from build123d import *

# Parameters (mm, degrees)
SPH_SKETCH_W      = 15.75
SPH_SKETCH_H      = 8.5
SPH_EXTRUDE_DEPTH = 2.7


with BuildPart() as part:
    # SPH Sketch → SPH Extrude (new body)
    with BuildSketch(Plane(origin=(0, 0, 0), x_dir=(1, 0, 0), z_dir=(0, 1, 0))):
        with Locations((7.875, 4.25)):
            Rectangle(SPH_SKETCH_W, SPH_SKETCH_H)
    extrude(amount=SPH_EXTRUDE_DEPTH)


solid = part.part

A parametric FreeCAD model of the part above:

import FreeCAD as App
import Part
import Sketcher

V = App.Vector
Q = App.Units.Quantity


def add_polygon(sketch, points):
    """Adds a closed chain of lines whose ends are joined by coincident constraints."""
    first, n = sketch.GeometryCount, len(points)
    for a, b in zip(points, points[1:] + points[:1]):
        sketch.addGeometry(Part.LineSegment(App.Vector(*a, 0), App.Vector(*b, 0)), False)
    for i in range(n):
        sketch.addConstraint(Sketcher.Constraint("Coincident", first + i, 2, first + (i + 1) % n, 1))

doc = App.newDocument("Part")
body = doc.addObject("PartDesign::Body", "Body")

# Sketch on XZ plane
sketch1 = body.newObject("Sketcher::SketchObject", "Sketch")
sketch1.AttachmentSupport = (doc.getObject("XZ_Plane"), [""])
sketch1.MapMode = "FlatFace"
add_polygon(sketch1, [(0, -8.5), (0, 0), (15.75, 0), (15.75, -8.5)])  # lines 0-3
sketch1.addConstraint([
    Sketcher.Constraint("Vertical", 0),
    Sketcher.Constraint("Horizontal", 1),
    Sketcher.Constraint("Vertical", 2),
    Sketcher.Constraint("Horizontal", 3),
    Sketcher.Constraint("Coincident", 0, 2, -1, 1),
    Sketcher.Constraint("DistanceY", 0, 1, 0, 2, Q("8.5 mm")),
    Sketcher.Constraint("DistanceX", 1, 1, 1, 2, Q("15.75 mm")),
])
pad1 = body.newObject("PartDesign::Pad", "Pad")
pad1.Profile = sketch1
pad1.Length = 2.7
pad1.Reversed = True

doc.recompute()
